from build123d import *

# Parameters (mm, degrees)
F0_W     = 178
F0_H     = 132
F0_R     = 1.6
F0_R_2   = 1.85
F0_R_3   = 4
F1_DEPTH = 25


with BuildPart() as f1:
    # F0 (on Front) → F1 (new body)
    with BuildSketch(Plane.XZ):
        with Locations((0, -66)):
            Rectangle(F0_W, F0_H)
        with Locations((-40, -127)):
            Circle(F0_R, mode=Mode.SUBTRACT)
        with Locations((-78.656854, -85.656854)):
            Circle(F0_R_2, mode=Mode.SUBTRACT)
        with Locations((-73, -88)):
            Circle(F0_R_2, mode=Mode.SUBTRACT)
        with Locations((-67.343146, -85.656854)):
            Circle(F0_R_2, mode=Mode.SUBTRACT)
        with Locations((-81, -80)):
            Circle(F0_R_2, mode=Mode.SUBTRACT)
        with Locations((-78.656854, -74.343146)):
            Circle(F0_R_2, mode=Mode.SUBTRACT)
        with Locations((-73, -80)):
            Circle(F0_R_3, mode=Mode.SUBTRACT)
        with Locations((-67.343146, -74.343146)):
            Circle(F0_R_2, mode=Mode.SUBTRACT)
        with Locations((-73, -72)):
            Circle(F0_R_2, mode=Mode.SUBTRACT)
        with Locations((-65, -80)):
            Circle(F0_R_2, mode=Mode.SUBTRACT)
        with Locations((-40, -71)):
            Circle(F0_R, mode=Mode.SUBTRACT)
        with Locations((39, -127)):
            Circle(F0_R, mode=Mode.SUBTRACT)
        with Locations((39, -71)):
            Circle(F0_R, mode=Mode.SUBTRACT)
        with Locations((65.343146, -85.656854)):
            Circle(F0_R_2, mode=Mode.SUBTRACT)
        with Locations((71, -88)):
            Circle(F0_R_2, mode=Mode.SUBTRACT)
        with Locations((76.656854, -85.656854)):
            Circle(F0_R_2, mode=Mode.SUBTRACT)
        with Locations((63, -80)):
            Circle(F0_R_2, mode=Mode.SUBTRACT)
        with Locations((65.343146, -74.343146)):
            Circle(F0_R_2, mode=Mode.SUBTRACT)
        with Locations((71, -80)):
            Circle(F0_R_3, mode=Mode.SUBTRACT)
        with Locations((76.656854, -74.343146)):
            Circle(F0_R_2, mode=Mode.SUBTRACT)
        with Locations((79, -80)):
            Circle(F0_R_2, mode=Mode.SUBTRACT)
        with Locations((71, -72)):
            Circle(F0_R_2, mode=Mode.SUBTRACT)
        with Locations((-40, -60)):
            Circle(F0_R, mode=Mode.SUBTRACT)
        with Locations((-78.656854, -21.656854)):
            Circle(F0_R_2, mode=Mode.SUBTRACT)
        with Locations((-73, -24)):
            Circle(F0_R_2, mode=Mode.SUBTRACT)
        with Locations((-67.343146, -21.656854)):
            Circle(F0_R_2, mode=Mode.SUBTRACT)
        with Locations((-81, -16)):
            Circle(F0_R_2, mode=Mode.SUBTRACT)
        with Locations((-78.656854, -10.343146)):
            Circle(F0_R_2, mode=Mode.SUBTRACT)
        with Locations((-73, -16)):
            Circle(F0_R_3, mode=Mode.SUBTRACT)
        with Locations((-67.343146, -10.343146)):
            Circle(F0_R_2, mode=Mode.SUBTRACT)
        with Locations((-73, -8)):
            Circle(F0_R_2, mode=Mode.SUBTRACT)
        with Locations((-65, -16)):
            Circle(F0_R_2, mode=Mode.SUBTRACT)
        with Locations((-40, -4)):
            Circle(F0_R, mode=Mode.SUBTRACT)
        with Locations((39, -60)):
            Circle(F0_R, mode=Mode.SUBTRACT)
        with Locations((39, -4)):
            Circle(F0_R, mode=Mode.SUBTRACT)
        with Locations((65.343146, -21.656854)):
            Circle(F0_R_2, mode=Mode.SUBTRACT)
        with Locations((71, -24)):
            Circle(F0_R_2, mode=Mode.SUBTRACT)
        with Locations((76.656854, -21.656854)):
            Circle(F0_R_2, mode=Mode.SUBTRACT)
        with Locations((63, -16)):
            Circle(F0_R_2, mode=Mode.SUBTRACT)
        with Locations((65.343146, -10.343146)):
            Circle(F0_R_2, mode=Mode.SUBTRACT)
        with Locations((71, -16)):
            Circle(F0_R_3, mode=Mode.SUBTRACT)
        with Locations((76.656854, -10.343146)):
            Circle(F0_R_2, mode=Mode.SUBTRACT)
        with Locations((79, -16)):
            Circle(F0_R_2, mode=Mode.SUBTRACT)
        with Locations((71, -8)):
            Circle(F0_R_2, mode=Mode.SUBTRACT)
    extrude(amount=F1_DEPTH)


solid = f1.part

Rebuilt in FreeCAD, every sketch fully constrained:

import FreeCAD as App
import Part
import Sketcher


def add_polygon(sketch, points):
    """Adds a closed chain of lines whose ends are joined by coincident constraints."""
    first, n = sketch.GeometryCount, len(points)
    for a, b in zip(points, points[1:] + points[:1]):
        sketch.addGeometry(Part.LineSegment(App.Vector(*a, 0), App.Vector(*b, 0)), False)
    for i in range(n):
        sketch.addConstraint(Sketcher.Constraint("Coincident", first + i, 2, first + (i + 1) % n, 1))

doc = App.newDocument("Part")
body = doc.addObject("PartDesign::Body", "Body")

# Sketch on XZ plane
sketch1 = body.newObject("Sketcher::SketchObject", "Sketch")
sketch1.AttachmentSupport = (doc.getObject("XZ_Plane"), [""])
sketch1.MapMode = "FlatFace"
add_polygon(sketch1, [(-89, 0), (-89, -132), (89, -132), (89, 0)])  # lines 0-3
sketch1.addGeometry(Part.Circle(App.Vector(-40, -127, 0), App.Vector(0, 0, 1), 1.6), False)  # 4
sketch1.addGeometry(Part.Circle(App.Vector(-78.656854, -85.656854, 0), App.Vector(0, 0, 1), 1.85), False)  # 5
sketch1.addGeometry(Part.Circle(App.Vector(-73, -88, 0), App.Vector(0, 0, 1), 1.85), False)  # 6
sketch1.addGeometry(Part.Circle(App.Vector(-67.343146, -85.656854, 0), App.Vector(0, 0, 1), 1.85), False)  # 7
sketch1.addGeometry(Part.Circle(App.Vector(-81, -80, 0), App.Vector(0, 0, 1), 1.85), False)  # 8
sketch1.addGeometry(Part.Circle(App.Vector(-73, -80, 0), App.Vector(0, 0, 1), 4), False)  # 9
sketch1.addGeometry(Part.Circle(App.Vector(-78.656854, -74.343146, 0), App.Vector(0, 0, 1), 1.85), False)  # 10
sketch1.addGeometry(Part.Circle(App.Vector(-65, -80, 0), App.Vector(0, 0, 1), 1.85), False)  # 11
sketch1.addGeometry(Part.Circle(App.Vector(-67.343146, -74.343146, 0), App.Vector(0, 0, 1), 1.85), False)  # 12
sketch1.addGeometry(Part.Circle(App.Vector(-73, -72, 0), App.Vector(0, 0, 1), 1.85), False)  # 13
sketch1.addGeometry(Part.Circle(App.Vector(-40, -71, 0), App.Vector(0, 0, 1), 1.6), False)  # 14
sketch1.addGeometry(Part.Circle(App.Vector(39, -127, 0), App.Vector(0, 0, 1), 1.6), False)  # 15
sketch1.addGeometry(Part.Circle(App.Vector(39, -71, 0), App.Vector(0, 0, 1), 1.6), False)  # 16
sketch1.addGeometry(Part.Circle(App.Vector(65.343146, -85.656854, 0), App.Vector(0, 0, 1), 1.85), False)  # 17
sketch1.addGeometry(Part.Circle(App.Vector(71, -88, 0), App.Vector(0, 0, 1), 1.85), False)  # 18
sketch1.addGeometry(Part.Circle(App.Vector(76.656854, -85.656854, 0), App.Vector(0, 0, 1), 1.85), False)  # 19
sketch1.addGeometry(Part.Circle(App.Vector(63, -80, 0), App.Vector(0, 0, 1), 1.85), False)  # 20
sketch1.addGeometry(Part.Circle(App.Vector(65.343146, -74.343146, 0), App.Vector(0, 0, 1), 1.85), False)  # 21
sketch1.addGeometry(Part.Circle(App.Vector(71, -80, 0), App.Vector(0, 0, 1), 4), False)  # 22
sketch1.addGeometry(Part.Circle(App.Vector(79, -80, 0), App.Vector(0, 0, 1), 1.85), False)  # 23
sketch1.addGeometry(Part.Circle(App.Vector(76.656854, -74.343146, 0), App.Vector(0, 0, 1), 1.85), False)  # 24
sketch1.addGeometry(Part.Circle(App.Vector(71, -72, 0), App.Vector(0, 0, 1), 1.85), False)  # 25
sketch1.addGeometry(Part.Circle(App.Vector(-40, -60, 0), App.Vector(0, 0, 1), 1.6), False)  # 26
sketch1.addGeometry(Part.Circle(App.Vector(-73, -24, 0), App.Vector(0, 0, 1), 1.85), False)  # 27
sketch1.addGeometry(Part.Circle(App.Vector(-78.656854, -21.656854, 0), App.Vector(0, 0, 1), 1.85), False)  # 28
sketch1.addGeometry(Part.Circle(App.Vector(-67.343146, -21.656854, 0), App.Vector(0, 0, 1), 1.85), False)  # 29
sketch1.addGeometry(Part.Circle(App.Vector(-81, -16, 0), App.Vector(0, 0, 1), 1.85), False)  # 30
sketch1.addGeometry(Part.Circle(App.Vector(-73, -16, 0), App.Vector(0, 0, 1), 4), False)  # 31
sketch1.addGeometry(Part.Circle(App.Vector(-78.656854, -10.343146, 0), App.Vector(0, 0, 1), 1.85), False)  # 32
sketch1.addGeometry(Part.Circle(App.Vector(-65, -16, 0), App.Vector(0, 0, 1), 1.85), False)  # 33
sketch1.addGeometry(Part.Circle(App.Vector(-67.343146, -10.343146, 0), App.Vector(0, 0, 1), 1.85), False)  # 34
sketch1.addGeometry(Part.Circle(App.Vector(-73, -8, 0), App.Vector(0, 0, 1), 1.85), False)  # 35
sketch1.addGeometry(Part.Circle(App.Vector(-40, -4, 0), App.Vector(0, 0, 1), 1.6), False)  # 36
sketch1.addGeometry(Part.Circle(App.Vector(39, -60, 0), App.Vector(0, 0, 1), 1.6), False)  # 37
sketch1.addGeometry(Part.Circle(App.Vector(39, -4, 0), App.Vector(0, 0, 1), 1.6), False)  # 38
sketch1.addGeometry(Part.Circle(App.Vector(65.343146, -21.656854, 0), App.Vector(0, 0, 1), 1.85), False)  # 39
sketch1.addGeometry(Part.Circle(App.Vector(71, -24, 0), App.Vector(0, 0, 1), 1.85), False)  # 40
sketch1.addGeometry(Part.Circle(App.Vector(76.656854, -21.656854, 0), App.Vector(0, 0, 1), 1.85), False)  # 41
sketch1.addGeometry(Part.Circle(App.Vector(63, -16, 0), App.Vector(0, 0, 1), 1.85), False)  # 42
sketch1.addGeometry(Part.Circle(App.Vector(65.343146, -10.343146, 0), App.Vector(0, 0, 1), 1.85), False)  # 43
sketch1.addGeometry(Part.Circle(App.Vector(71, -16, 0), App.Vector(0, 0, 1), 4), False)  # 44
sketch1.addGeometry(Part.Circle(App.Vector(79, -16, 0), App.Vector(0, 0, 1), 1.85), False)  # 45
sketch1.addGeometry(Part.Circle(App.Vector(76.656854, -10.343146, 0), App.Vector(0, 0, 1), 1.85), False)  # 46
sketch1.addGeometry(Part.Circle(App.Vector(71, -8, 0), App.Vector(0, 0, 1), 1.85), False)  # 47
sketch1.addConstraint(Sketcher.Constraint("Vertical", 0))
sketch1.addConstraint(Sketcher.Constraint("Horizontal", 1))
sketch1.addConstraint(Sketcher.Constraint("Vertical", 2))
sketch1.addConstraint(Sketcher.Constraint("Horizontal", 3))
sketch1.addConstraint(Sketcher.Constraint("Equal", 5, 6))
sketch1.addConstraint(Sketcher.Constraint("Equal", 6, 7))
sketch1.addConstraint(Sketcher.Constraint("Equal", 7, 8))
sketch1.addConstraint(Sketcher.Constraint("Equal", 8, 10))
sketch1.addConstraint(Sketcher.Constraint("Equal", 10, 11))
sketch1.addConstraint(Sketcher.Constraint("Equal", 11, 12))
sketch1.addConstraint(Sketcher.Constraint("Equal", 12, 13))
sketch1.addConstraint(Sketcher.Constraint("Equal", 4, 14))
sketch1.addConstraint(Sketcher.Constraint("Equal", 14, 15))
sketch1.addConstraint(Sketcher.Constraint("Equal", 15, 16))
sketch1.addConstraint(Sketcher.Constraint("Equal", 13, 17))
sketch1.addConstraint(Sketcher.Constraint("Equal", 17, 18))
sketch1.addConstraint(Sketcher.Constraint("Equal", 18, 19))
sketch1.addConstraint(Sketcher.Constraint("Equal", 19, 20))
sketch1.addConstraint(Sketcher.Constraint("Equal", 20, 21))
sketch1.addConstraint(Sketcher.Constraint("Equal", 9, 22))
sketch1.addConstraint(Sketcher.Constraint("Equal", 21, 23))
sketch1.addConstraint(Sketcher.Constraint("Equal", 23, 24))
sketch1.addConstraint(Sketcher.Constraint("Equal", 24, 25))
sketch1.addConstraint(Sketcher.Constraint("Equal", 16, 26))
sketch1.addConstraint(Sketcher.Constraint("Equal", 25, 27))
sketch1.addConstraint(Sketcher.Constraint("Equal", 27, 28))
sketch1.addConstraint(Sketcher.Constraint("Equal", 28, 29))
sketch1.addConstraint(Sketcher.Constraint("Equal", 29, 30))
sketch1.addConstraint(Sketcher.Constraint("Equal", 22, 31))
sketch1.addConstraint(Sketcher.Constraint("Equal", 30, 32))
sketch1.addConstraint(Sketcher.Constraint("Equal", 32, 33))
sketch1.addConstraint(Sketcher.Constraint("Equal", 33, 34))
sketch1.addConstraint(Sketcher.Constraint("Equal", 34, 35))
sketch1.addConstraint(Sketcher.Constraint("Equal", 26, 36))
sketch1.addConstraint(Sketcher.Constraint("Equal", 36, 37))
sketch1.addConstraint(Sketcher.Constraint("Equal", 37, 38))
sketch1.addConstraint(Sketcher.Constraint("Equal", 35, 39))
sketch1.addConstraint(Sketcher.Constraint("Equal", 39, 40))
sketch1.addConstraint(Sketcher.Constraint("Equal", 40, 41))
sketch1.addConstraint(Sketcher.Constraint("Equal", 41, 42))
sketch1.addConstraint(Sketcher.Constraint("Equal", 42, 43))
sketch1.addConstraint(Sketcher.Constraint("Equal", 31, 44))
sketch1.addConstraint(Sketcher.Constraint("Equal", 43, 45))
sketch1.addConstraint(Sketcher.Constraint("Equal", 45, 46))
sketch1.addConstraint(Sketcher.Constraint("Equal", 46, 47))
sketch1.addConstraint(Sketcher.Constraint("Symmetric", 2, 2, 3, 2, -1, 1))
sketch1.addConstraint(Sketcher.Constraint("Horizontal", 5, 3, 7, 3))
sketch1.addConstraint(Sketcher.Constraint("Horizontal", 8, 3, 9, 3))
sketch1.addConstraint(Sketcher.Constraint("Horizontal", 9, 3, 11, 3))
sketch1.addConstraint(Sketcher.Constraint("Horizontal", 10, 3, 12, 3))
sketch1.addConstraint(Sketcher.Constraint("Horizontal", 4, 3, 15, 3))
sketch1.addConstraint(Sketcher.Constraint("Horizontal", 14, 3, 16, 3))
sketch1.addConstraint(Sketcher.Constraint("Horizontal", 7, 3, 17, 3))
sketch1.addConstraint(Sketcher.Constraint("Horizontal", 6, 3, 18, 3))
sketch1.addConstraint(Sketcher.Constraint("Horizontal", 17, 3, 19, 3))
sketch1.addConstraint(Sketcher.Constraint("Horizontal", 11, 3, 20, 3))
sketch1.addConstraint(Sketcher.Constraint("Horizontal", 12, 3, 21, 3))
sketch1.addConstraint(Sketcher.Constraint("Horizontal", 20, 3, 22, 3))
sketch1.addConstraint(Sketcher.Constraint("Horizontal", 22, 3, 23, 3))
sketch1.addConstraint(Sketcher.Constraint("Horizontal", 21, 3, 24, 3))
sketch1.addConstraint(Sketcher.Constraint("Horizontal", 13, 3, 25, 3))
sketch1.addConstraint(Sketcher.Constraint("Horizontal", 28, 3, 29, 3))
sketch1.addConstraint(Sketcher.Constraint("Horizontal", 30, 3, 31, 3))
sketch1.addConstraint(Sketcher.Constraint("Horizontal", 31, 3, 33, 3))
sketch1.addConstraint(Sketcher.Constraint("Horizontal", 32, 3, 34, 3))
sketch1.addConstraint(Sketcher.Constraint("Horizontal", 26, 3, 37, 3))
sketch1.addConstraint(Sketcher.Constraint("Horizontal", 36, 3, 38, 3))
sketch1.addConstraint(Sketcher.Constraint("Horizontal", 29, 3, 39, 3))
sketch1.addConstraint(Sketcher.Constraint("Horizontal", 27, 3, 40, 3))
sketch1.addConstraint(Sketcher.Constraint("Horizontal", 39, 3, 41, 3))
sketch1.addConstraint(Sketcher.Constraint("Horizontal", 33, 3, 42, 3))
sketch1.addConstraint(Sketcher.Constraint("Horizontal", 34, 3, 43, 3))
sketch1.addConstraint(Sketcher.Constraint("Horizontal", 42, 3, 44, 3))
sketch1.addConstraint(Sketcher.Constraint("Horizontal", 44, 3, 45, 3))
sketch1.addConstraint(Sketcher.Constraint("Horizontal", 43, 3, 46, 3))
sketch1.addConstraint(Sketcher.Constraint("Horizontal", 35, 3, 47, 3))
sketch1.addConstraint(Sketcher.Constraint("Vertical", 6, 3, 9, 3))
sketch1.addConstraint(Sketcher.Constraint("Vertical", 5, 3, 10, 3))
sketch1.addConstraint(Sketcher.Constraint("Vertical", 7, 3, 12, 3))
sketch1.addConstraint(Sketcher.Constraint("Vertical", 9, 3, 13, 3))
sketch1.addConstraint(Sketcher.Constraint("Vertical", 4, 3, 14, 3))
sketch1.addConstraint(Sketcher.Constraint("Vertical", 15, 3, 16, 3))
sketch1.addConstraint(Sketcher.Constraint("Vertical", 17, 3, 21, 3))
sketch1.addConstraint(Sketcher.Constraint("Vertical", 18, 3, 22, 3))
sketch1.addConstraint(Sketcher.Constraint("Vertical", 19, 3, 24, 3))
sketch1.addConstraint(Sketcher.Constraint("Vertical", 22, 3, 25, 3))
sketch1.addConstraint(Sketcher.Constraint("Vertical", 14, 3, 26, 3))
sketch1.addConstraint(Sketcher.Constraint("Vertical", 13, 3, 27, 3))
sketch1.addConstraint(Sketcher.Constraint("Vertical", 10, 3, 28, 3))
sketch1.addConstraint(Sketcher.Constraint("Vertical", 12, 3, 29, 3))
sketch1.addConstraint(Sketcher.Constraint("Vertical", 8, 3, 30, 3))
sketch1.addConstraint(Sketcher.Constraint("Vertical", 27, 3, 31, 3))
sketch1.addConstraint(Sketcher.Constraint("Vertical", 28, 3, 32, 3))
sketch1.addConstraint(Sketcher.Constraint("Vertical", 11, 3, 33, 3))
sketch1.addConstraint(Sketcher.Constraint("Vertical", 29, 3, 34, 3))
sketch1.addConstraint(Sketcher.Constraint("Vertical", 31, 3, 35, 3))
sketch1.addConstraint(Sketcher.Constraint("Vertical", 26, 3, 36, 3))
sketch1.addConstraint(Sketcher.Constraint("Vertical", 16, 3, 37, 3))
sketch1.addConstraint(Sketcher.Constraint("Vertical", 37, 3, 38, 3))
sketch1.addConstraint(Sketcher.Constraint("Vertical", 21, 3, 39, 3))
sketch1.addConstraint(Sketcher.Constraint("Vertical", 25, 3, 40, 3))
sketch1.addConstraint(Sketcher.Constraint("Vertical", 24, 3, 41, 3))
sketch1.addConstraint(Sketcher.Constraint("Vertical", 20, 3, 42, 3))
sketch1.addConstraint(Sketcher.Constraint("Vertical", 39, 3, 43, 3))
sketch1.addConstraint(Sketcher.Constraint("Vertical", 40, 3, 44, 3))
sketch1.addConstraint(Sketcher.Constraint("Vertical", 23, 3, 45, 3))
sketch1.addConstraint(Sketcher.Constraint("Vertical", 41, 3, 46, 3))
sketch1.addConstraint(Sketcher.Constraint("Vertical", 44, 3, 47, 3))
sketch1.addConstraint(Sketcher.Constraint("Diameter", 9, 8.0))
sketch1.addConstraint(Sketcher.Constraint("Diameter", 4, 3.2))
sketch1.addConstraint(Sketcher.Constraint("Diameter", 5, 3.7))
sketch1.addConstraint(Sketcher.Constraint("DistanceX", 1, 1, 1, 2, 178.0))
sketch1.addConstraint(Sketcher.Constraint("DistanceY", 0, 2, 0, 1, 132.0))
sketch1.addConstraint(Sketcher.Constraint("DistanceX", 4, 3, -1, 1, 40.0))
sketch1.addConstraint(Sketcher.Constraint("DistanceY", 4, 3, -1, 1, 127.0))
sketch1.addConstraint(Sketcher.Constraint("DistanceX", 6, 3, -1, 1, 73.0))
sketch1.addConstraint(Sketcher.Constraint("DistanceY", 6, 3, -1, 1, 88.0))
sketch1.addConstraint(Sketcher.Constraint("DistanceX", 8, 3, -1, 1, 81.0))
sketch1.addConstraint(Sketcher.Constraint("DistanceY", 8, 3, -1, 1, 80.0))
sketch1.addConstraint(Sketcher.Constraint("DistanceX", 11, 3, -1, 1, 65.0))
sketch1.addConstraint(Sketcher.Constraint("DistanceY", 13, 3, -1, 1, 72.0))
sketch1.addConstraint(Sketcher.Constraint("DistanceY", 14, 3, -1, 1, 71.0))
sketch1.addConstraint(Sketcher.Constraint("DistanceX", -1, 1, 15, 3, 39.0))
sketch1.addConstraint(Sketcher.Constraint("DistanceX", -1, 1, 18, 3, 71.0))
sketch1.addConstraint(Sketcher.Constraint("DistanceX", -1, 1, 20, 3, 63.0))
sketch1.addConstraint(Sketcher.Constraint("DistanceX", -1, 1, 23, 3, 79.0))
sketch1.addConstraint(Sketcher.Constraint("DistanceY", 26, 3, -1, 1, 60.0))
sketch1.addConstraint(Sketcher.Constraint("DistanceY", 27, 3, -1, 1, 24.0))
sketch1.addConstraint(Sketcher.Constraint("DistanceY", 30, 3, -1, 1, 16.0))
sketch1.addConstraint(Sketcher.Constraint("DistanceY", 35, 3, -1, 1, 8.0))
sketch1.addConstraint(Sketcher.Constraint("DistanceY", 36, 3, -1, 1, 4.0))
sketch1.addConstraint(Sketcher.Constraint("DistanceX", 5, 3, -1, 1, 78.656854))
sketch1.addConstraint(Sketcher.Constraint("DistanceY", 5, 3, -1, 1, 85.656854))
sketch1.addConstraint(Sketcher.Constraint("DistanceX", 7, 3, -1, 1, 67.343146))
sketch1.addConstraint(Sketcher.Constraint("DistanceY", 10, 3, -1, 1, 74.343146))
sketch1.addConstraint(Sketcher.Constraint("DistanceX", -1, 1, 17, 3, 65.343146))
sketch1.addConstraint(Sketcher.Constraint("DistanceX", -1, 1, 19, 3, 76.656854))
sketch1.addConstraint(Sketcher.Constraint("DistanceY", 28, 3, -1, 1, 21.656854))
sketch1.addConstraint(Sketcher.Constraint("DistanceY", 32, 3, -1, 1, 10.343146))
pad1 = body.newObject("PartDesign::Pad", "Pad")
pad1.Profile = sketch1
pad1.Length = 25

doc.recompute()
